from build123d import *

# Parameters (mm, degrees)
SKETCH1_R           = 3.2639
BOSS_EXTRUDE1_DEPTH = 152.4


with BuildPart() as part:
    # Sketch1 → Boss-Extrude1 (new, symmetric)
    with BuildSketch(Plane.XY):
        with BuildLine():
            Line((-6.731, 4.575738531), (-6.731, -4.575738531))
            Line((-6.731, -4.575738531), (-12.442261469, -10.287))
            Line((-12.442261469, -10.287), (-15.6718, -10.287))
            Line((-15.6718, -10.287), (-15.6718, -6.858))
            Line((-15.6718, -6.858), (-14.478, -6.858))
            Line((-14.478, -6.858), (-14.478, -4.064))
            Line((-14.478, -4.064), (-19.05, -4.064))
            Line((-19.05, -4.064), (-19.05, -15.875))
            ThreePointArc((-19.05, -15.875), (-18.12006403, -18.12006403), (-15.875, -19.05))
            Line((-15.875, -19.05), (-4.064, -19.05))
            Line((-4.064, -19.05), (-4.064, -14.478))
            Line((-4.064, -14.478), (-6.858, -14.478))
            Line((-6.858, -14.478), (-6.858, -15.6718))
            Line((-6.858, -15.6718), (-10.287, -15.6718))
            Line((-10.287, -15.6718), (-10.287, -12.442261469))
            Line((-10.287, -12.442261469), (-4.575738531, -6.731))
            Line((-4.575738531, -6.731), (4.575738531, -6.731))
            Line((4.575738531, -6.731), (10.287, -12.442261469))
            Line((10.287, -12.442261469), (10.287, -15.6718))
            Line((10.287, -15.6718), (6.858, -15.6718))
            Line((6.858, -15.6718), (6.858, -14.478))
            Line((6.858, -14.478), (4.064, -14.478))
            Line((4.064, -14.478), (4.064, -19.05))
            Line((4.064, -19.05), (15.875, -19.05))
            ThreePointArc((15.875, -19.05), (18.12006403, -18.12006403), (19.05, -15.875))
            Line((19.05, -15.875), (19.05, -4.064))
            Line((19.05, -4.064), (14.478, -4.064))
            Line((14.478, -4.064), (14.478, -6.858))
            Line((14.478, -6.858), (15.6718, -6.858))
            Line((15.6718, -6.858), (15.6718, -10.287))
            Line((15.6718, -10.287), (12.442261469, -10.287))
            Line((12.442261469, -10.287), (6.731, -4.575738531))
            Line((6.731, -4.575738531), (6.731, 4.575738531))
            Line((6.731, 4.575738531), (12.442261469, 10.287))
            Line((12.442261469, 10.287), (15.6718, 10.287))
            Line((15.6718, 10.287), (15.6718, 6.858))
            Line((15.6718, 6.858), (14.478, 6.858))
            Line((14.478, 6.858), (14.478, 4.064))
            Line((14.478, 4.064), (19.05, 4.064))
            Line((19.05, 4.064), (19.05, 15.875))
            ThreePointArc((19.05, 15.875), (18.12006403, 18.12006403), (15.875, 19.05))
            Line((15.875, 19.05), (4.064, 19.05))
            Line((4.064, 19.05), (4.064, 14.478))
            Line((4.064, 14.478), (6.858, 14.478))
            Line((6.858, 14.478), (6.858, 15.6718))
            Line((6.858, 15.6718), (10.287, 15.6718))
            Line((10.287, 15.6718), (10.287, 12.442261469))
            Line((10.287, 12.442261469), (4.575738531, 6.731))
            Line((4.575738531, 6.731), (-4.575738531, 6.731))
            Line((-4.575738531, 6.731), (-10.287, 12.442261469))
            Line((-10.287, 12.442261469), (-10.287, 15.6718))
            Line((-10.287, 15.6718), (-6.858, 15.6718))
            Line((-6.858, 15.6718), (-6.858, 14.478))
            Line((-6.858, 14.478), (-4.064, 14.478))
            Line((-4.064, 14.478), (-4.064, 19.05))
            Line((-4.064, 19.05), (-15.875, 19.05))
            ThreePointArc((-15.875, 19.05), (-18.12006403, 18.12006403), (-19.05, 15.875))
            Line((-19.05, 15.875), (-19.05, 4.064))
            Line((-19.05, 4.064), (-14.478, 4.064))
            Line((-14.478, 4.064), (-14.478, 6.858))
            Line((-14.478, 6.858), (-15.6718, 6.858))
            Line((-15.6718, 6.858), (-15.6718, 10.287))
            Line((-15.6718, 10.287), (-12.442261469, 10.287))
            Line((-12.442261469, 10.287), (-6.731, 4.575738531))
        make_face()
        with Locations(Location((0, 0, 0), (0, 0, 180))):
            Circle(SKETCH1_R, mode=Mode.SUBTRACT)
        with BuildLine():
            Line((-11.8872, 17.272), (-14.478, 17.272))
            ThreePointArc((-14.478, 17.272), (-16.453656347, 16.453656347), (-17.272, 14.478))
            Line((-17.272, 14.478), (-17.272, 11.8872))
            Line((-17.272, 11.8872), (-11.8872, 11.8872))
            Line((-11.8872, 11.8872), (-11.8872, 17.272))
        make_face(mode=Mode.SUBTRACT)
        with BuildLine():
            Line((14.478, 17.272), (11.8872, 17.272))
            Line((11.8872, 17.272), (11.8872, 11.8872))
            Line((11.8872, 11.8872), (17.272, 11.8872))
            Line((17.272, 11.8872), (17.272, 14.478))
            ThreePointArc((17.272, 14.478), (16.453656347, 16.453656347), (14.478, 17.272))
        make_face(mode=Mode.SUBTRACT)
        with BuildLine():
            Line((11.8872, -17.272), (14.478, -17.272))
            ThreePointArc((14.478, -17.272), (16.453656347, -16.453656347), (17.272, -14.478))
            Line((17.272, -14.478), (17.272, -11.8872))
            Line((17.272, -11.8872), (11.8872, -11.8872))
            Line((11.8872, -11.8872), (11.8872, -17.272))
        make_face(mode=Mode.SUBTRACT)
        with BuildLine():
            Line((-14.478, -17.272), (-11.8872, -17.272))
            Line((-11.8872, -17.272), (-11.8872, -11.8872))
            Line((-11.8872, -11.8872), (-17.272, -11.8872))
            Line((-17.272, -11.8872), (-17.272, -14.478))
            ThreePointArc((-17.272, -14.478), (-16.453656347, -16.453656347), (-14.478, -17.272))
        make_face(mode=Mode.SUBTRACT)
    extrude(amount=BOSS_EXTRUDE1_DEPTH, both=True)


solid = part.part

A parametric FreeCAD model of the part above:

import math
import FreeCAD as App
import Part
import Sketcher

V = App.Vector
Q = App.Units.Quantity

doc = App.newDocument("Part")
body = doc.addObject("PartDesign::Body", "Body")

# Sketch on XY plane
sketch1 = body.newObject("Sketcher::SketchObject", "Sketch")
sketch1.AttachmentSupport = (doc.getObject("XY_Plane"), [""])
sketch1.MapMode = "FlatFace"
sketch1.addGeometry([
    Part.LineSegment(V(-6.7, 4.6, 0), V(-6.7, -4.6, 0)),  # 0
    Part.LineSegment(V(-6.7, -4.6, 0), V(-12.4, -10.3, 0)),  # 1
    Part.LineSegment(V(-12.4, -10.3, 0), V(-15.7, -10.3, 0)),  # 2
    Part.LineSegment(V(-15.7, -10.3, 0), V(-15.7, -6.9, 0)),  # 3
    Part.LineSegment(V(-15.7, -6.9, 0), V(-14.5, -6.9, 0)),  # 4
    Part.LineSegment(V(-14.5, -6.9, 0), V(-14.5, -4.1, 0)),  # 5
    Part.LineSegment(V(-14.5, -4.1, 0), V(-19.1, -4.1, 0)),  # 6
    Part.LineSegment(V(-19.1, -4.1, 0), V(-19.1, -15.9, 0)),  # 7
    Part.ArcOfCircle(Part.Circle(V(-15.9, -15.9, 0), V(0, 0, 1), 3.2), math.radians(-180), math.radians(-90)),  # 8
    Part.LineSegment(V(-15.9, -19.1, 0), V(-4.1, -19.1, 0)),  # 9
    Part.LineSegment(V(-4.1, -19.1, 0), V(-4.1, -14.5, 0)),  # 10
    Part.LineSegment(V(-4.1, -14.5, 0), V(-6.9, -14.5, 0)),  # 11
    Part.LineSegment(V(-6.9, -14.5, 0), V(-6.9, -15.7, 0)),  # 12
    Part.LineSegment(V(-6.9, -15.7, 0), V(-10.3, -15.7, 0)),  # 13
    Part.LineSegment(V(-10.3, -15.7, 0), V(-10.3, -12.4, 0)),  # 14
    Part.LineSegment(V(-10.3, -12.4, 0), V(-4.6, -6.7, 0)),  # 15
    Part.LineSegment(V(-4.6, -6.7, 0), V(4.6, -6.7, 0)),  # 16
    Part.LineSegment(V(4.6, -6.7, 0), V(10.3, -12.4, 0)),  # 17
    Part.LineSegment(V(10.3, -12.4, 0), V(10.3, -15.7, 0)),  # 18
    Part.LineSegment(V(10.3, -15.7, 0), V(6.9, -15.7, 0)),  # 19
    Part.LineSegment(V(6.9, -15.7, 0), V(6.9, -14.5, 0)),  # 20
    Part.LineSegment(V(6.9, -14.5, 0), V(4.1, -14.5, 0)),  # 21
    Part.LineSegment(V(4.1, -14.5, 0), V(4.1, -19.1, 0)),  # 22
    Part.LineSegment(V(4.1, -19.1, 0), V(15.9, -19.1, 0)),  # 23
    Part.ArcOfCircle(Part.Circle(V(15.9, -15.9, 0), V(0, 0, 1), 3.2), math.radians(-90), math.radians(0)),  # 24
    Part.LineSegment(V(19.1, -15.9, 0), V(19.1, -4.1, 0)),  # 25
    Part.LineSegment(V(19.1, -4.1, 0), V(14.5, -4.1, 0)),  # 26
    Part.LineSegment(V(14.5, -4.1, 0), V(14.5, -6.9, 0)),  # 27
    Part.LineSegment(V(14.5, -6.9, 0), V(15.7, -6.9, 0)),  # 28
    Part.LineSegment(V(15.7, -6.9, 0), V(15.7, -10.3, 0)),  # 29
    Part.LineSegment(V(15.7, -10.3, 0), V(12.4, -10.3, 0)),  # 30
    Part.LineSegment(V(12.4, -10.3, 0), V(6.7, -4.6, 0)),  # 31
    Part.LineSegment(V(6.7, -4.6, 0), V(6.7, 4.6, 0)),  # 32
    Part.LineSegment(V(6.7, 4.6, 0), V(12.4, 10.3, 0)),  # 33
    Part.LineSegment(V(12.4, 10.3, 0), V(15.7, 10.3, 0)),  # 34
    Part.LineSegment(V(15.7, 10.3, 0), V(15.7, 6.9, 0)),  # 35
    Part.LineSegment(V(15.7, 6.9, 0), V(14.5, 6.9, 0)),  # 36
    Part.LineSegment(V(14.5, 6.9, 0), V(14.5, 4.1, 0)),  # 37
    Part.LineSegment(V(14.5, 4.1, 0), V(19.1, 4.1, 0)),  # 38
    Part.LineSegment(V(19.1, 4.1, 0), V(19.1, 15.9, 0)),  # 39
    Part.ArcOfCircle(Part.Circle(V(15.9, 15.9, 0), V(0, 0, 1), 3.2), math.radians(0), math.radians(90)),  # 40
    Part.LineSegment(V(15.9, 19.1, 0), V(4.1, 19.1, 0)),  # 41
    Part.LineSegment(V(4.1, 19.1, 0), V(4.1, 14.5, 0)),  # 42
    Part.LineSegment(V(4.1, 14.5, 0), V(6.9, 14.5, 0)),  # 43
    Part.LineSegment(V(6.9, 14.5, 0), V(6.9, 15.7, 0)),  # 44
    Part.LineSegment(V(6.9, 15.7, 0), V(10.3, 15.7, 0)),  # 45
    Part.LineSegment(V(10.3, 15.7, 0), V(10.3, 12.4, 0)),  # 46
    Part.LineSegment(V(10.3, 12.4, 0), V(4.6, 6.7, 0)),  # 47
    Part.LineSegment(V(4.6, 6.7, 0), V(-4.6, 6.7, 0)),  # 48
    Part.LineSegment(V(-4.6, 6.7, 0), V(-10.3, 12.4, 0)),  # 49
    Part.LineSegment(V(-10.3, 12.4, 0), V(-10.3, 15.7, 0)),  # 50
    Part.LineSegment(V(-10.3, 15.7, 0), V(-6.9, 15.7, 0)),  # 51
    Part.LineSegment(V(-6.9, 15.7, 0), V(-6.9, 14.5, 0)),  # 52
    Part.LineSegment(V(-6.9, 14.5, 0), V(-4.1, 14.5, 0)),  # 53
    Part.LineSegment(V(-4.1, 14.5, 0), V(-4.1, 19.1, 0)),  # 54
    Part.LineSegment(V(-4.1, 19.1, 0), V(-15.9, 19.1, 0)),  # 55
    Part.ArcOfCircle(Part.Circle(V(-15.9, 15.9, 0), V(0, 0, 1), 3.2), math.radians(90), math.radians(180)),  # 56
    Part.LineSegment(V(-19.1, 15.9, 0), V(-19.1, 4.1, 0)),  # 57
    Part.LineSegment(V(-19.1, 4.1, 0), V(-14.5, 4.1, 0)),  # 58
    Part.LineSegment(V(-14.5, 4.1, 0), V(-14.5, 6.9, 0)),  # 59
    Part.LineSegment(V(-14.5, 6.9, 0), V(-15.7, 6.9, 0)),  # 60
    Part.LineSegment(V(-15.7, 6.9, 0), V(-15.7, 10.3, 0)),  # 61
    Part.LineSegment(V(-15.7, 10.3, 0), V(-12.4, 10.3, 0)),  # 62
    Part.LineSegment(V(-12.4, 10.3, 0), V(-6.7, 4.6, 0)),  # 63
    Part.LineSegment(V(-11.9, -17.3, 0), V(-14.5, -17.3, 0)),  # 64
    Part.ArcOfCircle(Part.Circle(V(-14.5, -14.5, 0), V(0, 0, 1), 2.8), math.radians(180), math.radians(270)),  # 65
    Part.LineSegment(V(-17.3, -14.5, 0), V(-17.3, -11.9, 0)),  # 66
    Part.LineSegment(V(-17.3, -11.9, 0), V(-11.9, -11.9, 0)),  # 67
    Part.LineSegment(V(-11.9, -11.9, 0), V(-11.9, -17.3, 0)),  # 68
    Part.LineSegment(V(14.5, -17.3, 0), V(11.9, -17.3, 0)),  # 69
    Part.LineSegment(V(11.9, -17.3, 0), V(11.9, -11.9, 0)),  # 70
    Part.LineSegment(V(11.9, -11.9, 0), V(17.3, -11.9, 0)),  # 71
    Part.LineSegment(V(17.3, -11.9, 0), V(17.3, -14.5, 0)),  # 72
    Part.ArcOfCircle(Part.Circle(V(14.5, -14.5, 0), V(0, 0, 1), 2.8), math.radians(-90), math.radians(0)),  # 73
    Part.LineSegment(V(-14.5, 17.3, 0), V(-11.9, 17.3, 0)),  # 74
    Part.LineSegment(V(-11.9, 17.3, 0), V(-11.9, 11.9, 0)),  # 75
    Part.LineSegment(V(-11.9, 11.9, 0), V(-17.3, 11.9, 0)),  # 76
    Part.LineSegment(V(-17.3, 11.9, 0), V(-17.3, 14.5, 0)),  # 77
    Part.ArcOfCircle(Part.Circle(V(-14.5, 14.5, 0), V(0, 0, 1), 2.8), math.radians(90), math.radians(180)),  # 78
    Part.Circle(V(0, 0, 0), V(0, 0, 1), 3.3),  # 79
    Part.LineSegment(V(11.9, 17.3, 0), V(14.5, 17.3, 0)),  # 80
    Part.ArcOfCircle(Part.Circle(V(14.5, 14.5, 0), V(0, 0, 1), 2.8), math.radians(0), math.radians(90)),  # 81
    Part.LineSegment(V(17.3, 14.5, 0), V(17.3, 11.9, 0)),  # 82
    Part.LineSegment(V(17.3, 11.9, 0), V(11.9, 11.9, 0)),  # 83
    Part.LineSegment(V(11.9, 11.9, 0), V(11.9, 17.3, 0)),  # 84
], False)
sketch1.addConstraint([
    Sketcher.Constraint("Coincident", 0, 2, 1, 1),
    Sketcher.Constraint("Coincident", 1, 2, 2, 1),
    Sketcher.Constraint("Coincident", 2, 2, 3, 1),
    Sketcher.Constraint("Coincident", 3, 2, 4, 1),
    Sketcher.Constraint("Coincident", 4, 2, 5, 1),
    Sketcher.Constraint("Coincident", 5, 2, 6, 1),
    Sketcher.Constraint("Coincident", 6, 2, 7, 1),
    Sketcher.Constraint("Tangent", 7, 2, 8, 1),
    Sketcher.Constraint("Tangent", 8, 2, 9, 1),
    Sketcher.Constraint("Coincident", 9, 2, 10, 1),
    Sketcher.Constraint("Coincident", 10, 2, 11, 1),
    Sketcher.Constraint("Coincident", 11, 2, 12, 1),
    Sketcher.Constraint("Coincident", 12, 2, 13, 1),
    Sketcher.Constraint("Coincident", 13, 2, 14, 1),
    Sketcher.Constraint("Coincident", 14, 2, 15, 1),
    Sketcher.Constraint("Coincident", 15, 2, 16, 1),
    Sketcher.Constraint("Coincident", 16, 2, 17, 1),
    Sketcher.Constraint("Coincident", 17, 2, 18, 1),
    Sketcher.Constraint("Coincident", 18, 2, 19, 1),
    Sketcher.Constraint("Coincident", 19, 2, 20, 1),
    Sketcher.Constraint("Coincident", 20, 2, 21, 1),
    Sketcher.Constraint("Coincident", 21, 2, 22, 1),
    Sketcher.Constraint("Coincident", 22, 2, 23, 1),
    Sketcher.Constraint("Tangent", 23, 2, 24, 1),
    Sketcher.Constraint("Tangent", 24, 2, 25, 1),
    Sketcher.Constraint("Coincident", 25, 2, 26, 1),
    Sketcher.Constraint("Coincident", 26, 2, 27, 1),
    Sketcher.Constraint("Coincident", 27, 2, 28, 1),
    Sketcher.Constraint("Coincident", 28, 2, 29, 1),
    Sketcher.Constraint("Coincident", 29, 2, 30, 1),
    Sketcher.Constraint("Coincident", 30, 2, 31, 1),
    Sketcher.Constraint("Coincident", 31, 2, 32, 1),
    Sketcher.Constraint("Coincident", 32, 2, 33, 1),
    Sketcher.Constraint("Coincident", 33, 2, 34, 1),
    Sketcher.Constraint("Coincident", 34, 2, 35, 1),
    Sketcher.Constraint("Coincident", 35, 2, 36, 1),
    Sketcher.Constraint("Coincident", 36, 2, 37, 1),
    Sketcher.Constraint("Coincident", 37, 2, 38, 1),
    Sketcher.Constraint("Coincident", 38, 2, 39, 1),
    Sketcher.Constraint("Tangent", 39, 2, 40, 1),
    Sketcher.Constraint("Tangent", 40, 2, 41, 1),
    Sketcher.Constraint("Coincident", 41, 2, 42, 1),
    Sketcher.Constraint("Coincident", 42, 2, 43, 1),
    Sketcher.Constraint("Coincident", 43, 2, 44, 1),
    Sketcher.Constraint("Coincident", 44, 2, 45, 1),
    Sketcher.Constraint("Coincident", 45, 2, 46, 1),
    Sketcher.Constraint("Coincident", 46, 2, 47, 1),
    Sketcher.Constraint("Coincident", 47, 2, 48, 1),
    Sketcher.Constraint("Coincident", 48, 2, 49, 1),
    Sketcher.Constraint("Coincident", 49, 2, 50, 1),
    Sketcher.Constraint("Coincident", 50, 2, 51, 1),
    Sketcher.Constraint("Coincident", 51, 2, 52, 1),
    Sketcher.Constraint("Coincident", 52, 2, 53, 1),
    Sketcher.Constraint("Coincident", 53, 2, 54, 1),
    Sketcher.Constraint("Coincident", 54, 2, 55, 1),
    Sketcher.Constraint("Tangent", 55, 2, 56, 1),
    Sketcher.Constraint("Tangent", 56, 2, 57, 1),
    Sketcher.Constraint("Coincident", 57, 2, 58, 1),
    Sketcher.Constraint("Coincident", 58, 2, 59, 1),
    Sketcher.Constraint("Coincident", 59, 2, 60, 1),
    Sketcher.Constraint("Coincident", 60, 2, 61, 1),
    Sketcher.Constraint("Coincident", 61, 2, 62, 1),
    Sketcher.Constraint("Coincident", 62, 2, 63, 1),
    Sketcher.Constraint("Coincident", 63, 2, 0, 1),
    Sketcher.Constraint("Tangent", 64, 2, 65, 2),
    Sketcher.Constraint("Tangent", 65, 1, 66, 1),
    Sketcher.Constraint("Coincident", 66, 2, 67, 1),
    Sketcher.Constraint("Coincident", 67, 2, 68, 1),
    Sketcher.Constraint("Coincident", 68, 2, 64, 1),
    Sketcher.Constraint("Coincident", 69, 2, 70, 1),
    Sketcher.Constraint("Coincident", 70, 2, 71, 1),
    Sketcher.Constraint("Coincident", 71, 2, 72, 1),
    Sketcher.Constraint("Tangent", 72, 2, 73, 2),
    Sketcher.Constraint("Tangent", 73, 1, 69, 1),
    Sketcher.Constraint("Coincident", 74, 2, 75, 1),
    Sketcher.Constraint("Coincident", 75, 2, 76, 1),
    Sketcher.Constraint("Coincident", 76, 2, 77, 1),
    Sketcher.Constraint("Tangent", 77, 2, 78, 2),
    Sketcher.Constraint("Tangent", 78, 1, 74, 1),
    Sketcher.Constraint("Tangent", 80, 2, 81, 2),
    Sketcher.Constraint("Tangent", 81, 1, 82, 1),
    Sketcher.Constraint("Coincident", 82, 2, 83, 1),
    Sketcher.Constraint("Coincident", 83, 2, 84, 1),
    Sketcher.Constraint("Coincident", 84, 2, 80, 1),
    Sketcher.Constraint("Vertical", 0),
    Sketcher.Constraint("Horizontal", 2),
    Sketcher.Constraint("Vertical", 3),
    Sketcher.Constraint("Horizontal", 4),
    Sketcher.Constraint("Vertical", 5),
    Sketcher.Constraint("Horizontal", 6),
    Sketcher.Constraint("Vertical", 7),
    Sketcher.Constraint("Horizontal", 9),
    Sketcher.Constraint("Vertical", 10),
    Sketcher.Constraint("Horizontal", 11),
    Sketcher.Constraint("Vertical", 12),
    Sketcher.Constraint("Horizontal", 13),
    Sketcher.Constraint("Vertical", 14),
    Sketcher.Constraint("Horizontal", 16),
    Sketcher.Constraint("Vertical", 18),
    Sketcher.Constraint("Horizontal", 19),
    Sketcher.Constraint("Vertical", 20),
    Sketcher.Constraint("Horizontal", 21),
    Sketcher.Constraint("Vertical", 22),
    Sketcher.Constraint("Horizontal", 23),
    Sketcher.Constraint("Vertical", 25),
    Sketcher.Constraint("Horizontal", 26),
    Sketcher.Constraint("Vertical", 27),
    Sketcher.Constraint("Horizontal", 28),
    Sketcher.Constraint("Vertical", 29),
    Sketcher.Constraint("Horizontal", 30),
    Sketcher.Constraint("Vertical", 32),
    Sketcher.Constraint("Horizontal", 34),
    Sketcher.Constraint("Vertical", 35),
    Sketcher.Constraint("Horizontal", 36),
    Sketcher.Constraint("Vertical", 37),
    Sketcher.Constraint("Horizontal", 38),
    Sketcher.Constraint("Vertical", 39),
    Sketcher.Constraint("Horizontal", 41),
    Sketcher.Constraint("Vertical", 42),
    Sketcher.Constraint("Horizontal", 43),
    Sketcher.Constraint("Vertical", 44),
    Sketcher.Constraint("Horizontal", 45),
    Sketcher.Constraint("Vertical", 46),
    Sketcher.Constraint("Horizontal", 48),
    Sketcher.Constraint("Vertical", 50),
    Sketcher.Constraint("Horizontal", 51),
    Sketcher.Constraint("Vertical", 52),
    Sketcher.Constraint("Horizontal", 53),
    Sketcher.Constraint("Vertical", 54),
    Sketcher.Constraint("Horizontal", 55),
    Sketcher.Constraint("Vertical", 57),
    Sketcher.Constraint("Horizontal", 58),
    Sketcher.Constraint("Vertical", 59),
    Sketcher.Constraint("Horizontal", 60),
    Sketcher.Constraint("Vertical", 61),
    Sketcher.Constraint("Horizontal", 62),
    Sketcher.Constraint("Horizontal", 64),
    Sketcher.Constraint("Vertical", 66),
    Sketcher.Constraint("Horizontal", 67),
    Sketcher.Constraint("Vertical", 68),
    Sketcher.Constraint("Horizontal", 69),
    Sketcher.Constraint("Vertical", 70),
    Sketcher.Constraint("Horizontal", 71),
    Sketcher.Constraint("Vertical", 72),
    Sketcher.Constraint("Horizontal", 74),
    Sketcher.Constraint("Vertical", 75),
    Sketcher.Constraint("Horizontal", 76),
    Sketcher.Constraint("Vertical", 77),
    Sketcher.Constraint("Horizontal", 80),
    Sketcher.Constraint("Vertical", 82),
    Sketcher.Constraint("Horizontal", 83),
    Sketcher.Constraint("Vertical", 84),
    Sketcher.Constraint("Coincident", 79, 3, -1, 1),
    Sketcher.Constraint("Equal", 8, 24),
    Sketcher.Constraint("Equal", 24, 40),
    Sketcher.Constraint("Equal", 40, 56),
    Sketcher.Constraint("Equal", 65, 73),
    Sketcher.Constraint("Equal", 73, 78),
    Sketcher.Constraint("Equal", 78, 81),
    Sketcher.Constraint("Symmetric", 8, 3, 40, 3, -1, 1),
    Sketcher.Constraint("Symmetric", 24, 3, 56, 3, -1, 1),
    Sketcher.Constraint("Symmetric", 73, 3, 78, 3, -1, 1),
    Sketcher.Constraint("Symmetric", 65, 3, 81, 3, -1, 1),
    Sketcher.Constraint("Symmetric", 0, 2, 32, 2, -1, 1),
    Sketcher.Constraint("Symmetric", 1, 2, 33, 2, -1, 1),
    Sketcher.Constraint("Symmetric", 3, 2, 35, 2, -1, 1),
    Sketcher.Constraint("Symmetric", 5, 2, 37, 2, -1, 1),
    Sketcher.Constraint("Symmetric", 10, 2, 42, 2, -1, 1),
    Sketcher.Constraint("Symmetric", 12, 2, 44, 2, -1, 1),
    Sketcher.Constraint("Symmetric", 14, 2, 46, 2, -1, 1),
    Sketcher.Constraint("Symmetric", 15, 2, 47, 2, -1, 1),
    Sketcher.Constraint("Symmetric", 17, 2, 49, 2, -1, 1),
    Sketcher.Constraint("Symmetric", 19, 2, 51, 2, -1, 1),
    Sketcher.Constraint("Symmetric", 21, 2, 53, 2, -1, 1),
    Sketcher.Constraint("Symmetric", 26, 2, 58, 2, -1, 1),
    Sketcher.Constraint("Symmetric", 28, 2, 60, 2, -1, 1),
    Sketcher.Constraint("Symmetric", 30, 2, 62, 2, -1, 1),
    Sketcher.Constraint("Symmetric", 70, 2, 75, 2, -1, 1),
    Sketcher.Constraint("Symmetric", 67, 2, 83, 2, -1, 1),
    Sketcher.Constraint("Symmetric", 8, 3, 24, 3, -2),
    Sketcher.Constraint("Symmetric", 65, 3, 73, 3, -2),
    Sketcher.Constraint("Symmetric", 14, 2, 17, 2, -2),
    Sketcher.Constraint("Symmetric", 12, 2, 19, 2, -2),
    Sketcher.Constraint("Symmetric", 10, 2, 21, 2, -2),
    Sketcher.Constraint("Symmetric", 5, 2, 26, 2, -2),
    Sketcher.Constraint("Symmetric", 3, 2, 28, 2, -2),
    Sketcher.Constraint("Symmetric", 1, 2, 30, 2, -2),
    Sketcher.Constraint("Symmetric", 67, 2, 70, 2, -2),
    Sketcher.Constraint("Parallel", 1, 15),
    Sketcher.Constraint("Perpendicular", 15, 17),
    Sketcher.Constraint("Parallel", 17, 31),
    Sketcher.Constraint("Perpendicular", 47, 49),
    Sketcher.Constraint("Parallel", 49, 63),
    Sketcher.Constraint("Horizontal", 73, 3, 10, 2),
    Sketcher.Constraint("Horizontal", 0, 2, 31, 2),
    Sketcher.Constraint("Vertical", 78, 3, 4, 2),
    Sketcher.Constraint("Equal", 48, 0),
    Sketcher.Constraint("Equal", 51, 3),
    Sketcher.Constraint("Equal", 53, 5),
    Sketcher.Constraint("Equal", 55, 7),
    Sketcher.Constraint("Equal", 58, 10),
    Sketcher.Constraint("Equal", 60, 12),
    Sketcher.Constraint("Equal", 62, 14),
    Sketcher.Constraint("Equal", 80, 66),
    Sketcher.Constraint("Equal", 1, 15),
    Sketcher.Constraint("Radius", 65, Q("0.11 in")),
    Sketcher.Constraint("Diameter", 79, Q("0.257 in")),
    Sketcher.Constraint("Radius", 8, Q("0.125 in")),
    Sketcher.Constraint("DistanceX", 6, 2, 6, 1, Q("0.18 in")),
    Sketcher.Constraint("DistanceX", 11, 2, 11, 1, Q("0.11 in")),
    Sketcher.Constraint("DistanceX", 4, 1, 4, 2, Q("0.047 in")),
    Sketcher.Constraint("DistanceX", 9, 1, 9, 2, Q("0.465 in")),
    Sketcher.Constraint("DistanceX", 13, 2, 13, 1, Q("0.135 in")),
    Sketcher.Constraint("DistanceX", 64, 2, 64, 1, Q("0.102 in")),
    Sketcher.Constraint("DistanceX", 65, 3, -1, 1, Q("0.57 in")),
    Sketcher.Constraint("DistanceX", 0, 2, -1, 1, Q("0.265 in")),
    Sketcher.Constraint("DistanceX", 2, 2, 2, 1, Q("3.229539 mm")),
])
pad1 = body.newObject("PartDesign::Pad", "Pad")
pad1.Profile = sketch1
pad1.Length = Q("12 in")
pad1.Midplane = True

doc.recompute()
